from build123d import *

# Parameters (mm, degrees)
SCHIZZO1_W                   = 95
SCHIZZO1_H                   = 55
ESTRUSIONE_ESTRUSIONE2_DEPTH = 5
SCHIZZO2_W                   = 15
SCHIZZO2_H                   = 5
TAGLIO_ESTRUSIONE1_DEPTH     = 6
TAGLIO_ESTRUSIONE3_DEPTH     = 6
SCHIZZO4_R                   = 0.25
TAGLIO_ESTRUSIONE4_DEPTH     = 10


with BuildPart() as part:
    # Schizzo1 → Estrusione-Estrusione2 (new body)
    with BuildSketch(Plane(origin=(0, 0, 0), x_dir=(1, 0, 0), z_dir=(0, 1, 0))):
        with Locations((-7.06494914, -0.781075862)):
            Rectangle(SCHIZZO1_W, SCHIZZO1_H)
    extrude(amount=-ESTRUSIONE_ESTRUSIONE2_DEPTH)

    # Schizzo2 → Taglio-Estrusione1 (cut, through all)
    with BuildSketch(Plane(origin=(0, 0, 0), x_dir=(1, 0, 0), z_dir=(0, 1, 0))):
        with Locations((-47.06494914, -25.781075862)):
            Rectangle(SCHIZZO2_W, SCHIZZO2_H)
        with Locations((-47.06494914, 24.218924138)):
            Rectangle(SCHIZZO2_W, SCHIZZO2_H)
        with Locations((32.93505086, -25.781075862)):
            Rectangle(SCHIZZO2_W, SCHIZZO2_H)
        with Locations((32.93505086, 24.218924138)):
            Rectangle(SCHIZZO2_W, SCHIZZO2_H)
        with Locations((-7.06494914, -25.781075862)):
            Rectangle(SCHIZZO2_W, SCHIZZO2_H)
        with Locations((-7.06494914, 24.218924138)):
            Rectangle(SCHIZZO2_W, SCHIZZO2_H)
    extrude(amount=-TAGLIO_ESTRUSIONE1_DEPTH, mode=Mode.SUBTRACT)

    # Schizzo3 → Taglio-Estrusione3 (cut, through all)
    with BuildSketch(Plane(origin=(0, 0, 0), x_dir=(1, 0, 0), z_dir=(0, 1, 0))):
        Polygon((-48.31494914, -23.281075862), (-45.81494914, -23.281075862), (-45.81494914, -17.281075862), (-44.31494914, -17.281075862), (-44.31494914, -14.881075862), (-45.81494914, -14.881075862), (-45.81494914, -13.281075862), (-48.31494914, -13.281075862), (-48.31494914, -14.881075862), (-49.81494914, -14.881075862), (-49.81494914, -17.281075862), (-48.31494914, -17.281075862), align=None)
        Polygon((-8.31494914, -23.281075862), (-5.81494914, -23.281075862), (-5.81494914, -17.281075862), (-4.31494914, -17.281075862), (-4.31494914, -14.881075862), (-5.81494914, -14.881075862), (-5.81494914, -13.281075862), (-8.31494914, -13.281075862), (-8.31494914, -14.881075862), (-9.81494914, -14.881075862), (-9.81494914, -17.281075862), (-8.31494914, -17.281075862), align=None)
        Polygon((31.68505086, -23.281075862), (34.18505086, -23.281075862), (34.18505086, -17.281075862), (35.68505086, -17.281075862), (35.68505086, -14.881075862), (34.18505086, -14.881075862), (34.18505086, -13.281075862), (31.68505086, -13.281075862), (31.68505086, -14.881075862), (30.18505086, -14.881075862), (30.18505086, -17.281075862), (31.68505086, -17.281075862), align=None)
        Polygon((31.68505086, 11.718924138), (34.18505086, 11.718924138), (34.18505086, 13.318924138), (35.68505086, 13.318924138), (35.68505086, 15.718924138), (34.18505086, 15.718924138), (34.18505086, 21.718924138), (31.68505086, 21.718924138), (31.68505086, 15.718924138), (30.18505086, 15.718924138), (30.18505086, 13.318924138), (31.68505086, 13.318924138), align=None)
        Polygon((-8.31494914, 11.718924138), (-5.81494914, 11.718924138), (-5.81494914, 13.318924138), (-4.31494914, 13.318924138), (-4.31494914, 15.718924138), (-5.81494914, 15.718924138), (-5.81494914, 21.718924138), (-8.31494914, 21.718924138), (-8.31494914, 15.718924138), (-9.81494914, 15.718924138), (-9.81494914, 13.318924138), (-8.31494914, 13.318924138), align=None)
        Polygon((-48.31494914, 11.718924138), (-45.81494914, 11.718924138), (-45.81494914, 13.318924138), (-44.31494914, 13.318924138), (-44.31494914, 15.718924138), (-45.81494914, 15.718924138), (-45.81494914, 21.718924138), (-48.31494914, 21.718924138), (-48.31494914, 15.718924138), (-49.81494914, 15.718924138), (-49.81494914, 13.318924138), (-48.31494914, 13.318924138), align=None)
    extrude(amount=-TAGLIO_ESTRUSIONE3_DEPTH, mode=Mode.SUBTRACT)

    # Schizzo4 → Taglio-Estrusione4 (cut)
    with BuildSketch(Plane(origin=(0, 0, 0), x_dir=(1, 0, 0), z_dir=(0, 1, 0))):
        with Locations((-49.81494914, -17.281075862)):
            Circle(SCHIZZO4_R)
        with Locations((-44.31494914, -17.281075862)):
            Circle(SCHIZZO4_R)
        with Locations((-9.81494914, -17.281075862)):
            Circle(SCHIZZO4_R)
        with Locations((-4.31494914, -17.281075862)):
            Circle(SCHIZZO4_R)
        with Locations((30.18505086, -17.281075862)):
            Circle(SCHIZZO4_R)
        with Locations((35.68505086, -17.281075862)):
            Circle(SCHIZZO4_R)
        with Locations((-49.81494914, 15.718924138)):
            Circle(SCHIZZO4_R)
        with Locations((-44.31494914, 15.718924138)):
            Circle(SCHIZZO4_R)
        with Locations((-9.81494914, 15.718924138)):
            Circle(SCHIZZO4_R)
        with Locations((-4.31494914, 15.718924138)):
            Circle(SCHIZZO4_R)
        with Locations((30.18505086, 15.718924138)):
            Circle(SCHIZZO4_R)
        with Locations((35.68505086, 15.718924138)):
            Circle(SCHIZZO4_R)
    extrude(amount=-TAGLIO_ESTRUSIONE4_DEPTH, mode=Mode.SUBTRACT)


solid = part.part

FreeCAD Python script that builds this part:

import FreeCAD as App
import Part
import Sketcher
Q = App.Units.Quantity

doc = App.newDocument("Part")
body = doc.addObject("PartDesign::Body", "Body")

# Sketch on XZ plane
sketch1 = body.newObject("Sketcher::SketchObject", "Sketch")
sketch1.AttachmentSupport = (doc.getObject("XZ_Plane"), [""])
sketch1.MapMode = "FlatFace"
sketch1.addGeometry([
    Part.LineSegment(App.Vector(-54.564949, -26.718924, 0), App.Vector(-54.564949, 28.281076, 0)),
    Part.LineSegment(App.Vector(-54.564949, 28.281076, 0), App.Vector(40.435051, 28.281076, 0)),
    Part.LineSegment(App.Vector(40.435051, 28.281076, 0), App.Vector(40.435051, -26.718924, 0)),
    Part.LineSegment(App.Vector(40.435051, -26.718924, 0), App.Vector(-54.564949, -26.718924, 0)),
], False)
sketch1.addConstraint([
    Sketcher.Constraint("Coincident", 0, 2, 1, 1),
    Sketcher.Constraint("Coincident", 1, 2, 2, 1),
    Sketcher.Constraint("Coincident", 2, 2, 3, 1),
    Sketcher.Constraint("Coincident", 3, 2, 0, 1),
    Sketcher.Constraint("Vertical", 0),
    Sketcher.Constraint("Horizontal", 1),
    Sketcher.Constraint("Vertical", 2),
    Sketcher.Constraint("Horizontal", 3),
    Sketcher.Constraint("DistanceX", 1, 1, 1, 2, Q("95 mm")),
    Sketcher.Constraint("DistanceY", 0, 1, 0, 2, Q("55 mm")),
    Sketcher.Constraint("DistanceX", 0, 2, -1, 1, Q("54.564949 mm")),
    Sketcher.Constraint("DistanceY", -1, 1, 0, 2, Q("28.281076 mm")),
])
pad1 = body.newObject("PartDesign::Pad", "Pad")
pad1.Profile = sketch1
pad1.Length = 5

# Sketch on XZ plane
sketch2 = body.newObject("Sketcher::SketchObject", "Sketch001")
sketch2.AttachmentSupport = (doc.getObject("XZ_Plane"), [""])
sketch2.MapMode = "FlatFace"
sketch2.addGeometry([
    Part.LineSegment(App.Vector(-54.564949, 23.281076, 0), App.Vector(-54.564949, 28.281076, 0)),  # 0
    Part.LineSegment(App.Vector(-54.564949, 28.281076, 0), App.Vector(-39.564949, 28.281076, 0)),  # 1
    Part.LineSegment(App.Vector(-39.564949, 28.281076, 0), App.Vector(-39.564949, 23.281076, 0)),  # 2
    Part.LineSegment(App.Vector(-39.564949, 23.281076, 0), App.Vector(-54.564949, 23.281076, 0)),  # 3
    Part.LineSegment(App.Vector(-54.564949, -26.718924, 0), App.Vector(-54.564949, -21.718924, 0)),  # 4
    Part.LineSegment(App.Vector(-54.564949, -21.718924, 0), App.Vector(-39.564949, -21.718924, 0)),  # 5
    Part.LineSegment(App.Vector(-39.564949, -21.718924, 0), App.Vector(-39.564949, -26.718924, 0)),  # 6
    Part.LineSegment(App.Vector(-39.564949, -26.718924, 0), App.Vector(-54.564949, -26.718924, 0)),  # 7
    Part.LineSegment(App.Vector(25.435051, 23.281076, 0), App.Vector(25.435051, 28.281076, 0)),  # 8
    Part.LineSegment(App.Vector(25.435051, 28.281076, 0), App.Vector(40.435051, 28.281076, 0)),  # 9
    Part.LineSegment(App.Vector(40.435051, 28.281076, 0), App.Vector(40.435051, 23.281076, 0)),  # 10
    Part.LineSegment(App.Vector(40.435051, 23.281076, 0), App.Vector(25.435051, 23.281076, 0)),  # 11
    Part.LineSegment(App.Vector(25.435051, -26.718924, 0), App.Vector(25.435051, -21.718924, 0)),  # 12
    Part.LineSegment(App.Vector(25.435051, -21.718924, 0), App.Vector(40.435051, -21.718924, 0)),  # 13
    Part.LineSegment(App.Vector(40.435051, -21.718924, 0), App.Vector(40.435051, -26.718924, 0)),  # 14
    Part.LineSegment(App.Vector(40.435051, -26.718924, 0), App.Vector(25.435051, -26.718924, 0)),  # 15
    Part.LineSegment(App.Vector(-14.564949, 23.281076, 0), App.Vector(-14.564949, 28.281076, 0)),  # 16
    Part.LineSegment(App.Vector(-14.564949, 28.281076, 0), App.Vector(0.435051, 28.281076, 0)),  # 17
    Part.LineSegment(App.Vector(0.435051, 28.281076, 0), App.Vector(0.435051, 23.281076, 0)),  # 18
    Part.LineSegment(App.Vector(0.435051, 23.281076, 0), App.Vector(-14.564949, 23.281076, 0)),  # 19
    Part.LineSegment(App.Vector(-14.564949, -26.718924, 0), App.Vector(-14.564949, -21.718924, 0)),  # 20
    Part.LineSegment(App.Vector(-14.564949, -21.718924, 0), App.Vector(0.435051, -21.718924, 0)),  # 21
    Part.LineSegment(App.Vector(0.435051, -21.718924, 0), App.Vector(0.435051, -26.718924, 0)),  # 22
    Part.LineSegment(App.Vector(0.435051, -26.718924, 0), App.Vector(-14.564949, -26.718924, 0)),  # 23
], False)
sketch2.addConstraint([
    Sketcher.Constraint("Coincident", 0, 2, 1, 1),
    Sketcher.Constraint("Coincident", 1, 2, 2, 1),
    Sketcher.Constraint("Coincident", 2, 2, 3, 1),
    Sketcher.Constraint("Coincident", 3, 2, 0, 1),
    Sketcher.Constraint("Coincident", 4, 2, 5, 1),
    Sketcher.Constraint("Coincident", 5, 2, 6, 1),
    Sketcher.Constraint("Coincident", 6, 2, 7, 1),
    Sketcher.Constraint("Coincident", 7, 2, 4, 1),
    Sketcher.Constraint("Coincident", 8, 2, 9, 1),
    Sketcher.Constraint("Coincident", 9, 2, 10, 1),
    Sketcher.Constraint("Coincident", 10, 2, 11, 1),
    Sketcher.Constraint("Coincident", 11, 2, 8, 1),
    Sketcher.Constraint("Coincident", 12, 2, 13, 1),
    Sketcher.Constraint("Coincident", 13, 2, 14, 1),
    Sketcher.Constraint("Coincident", 14, 2, 15, 1),
    Sketcher.Constraint("Coincident", 15, 2, 12, 1),
    Sketcher.Constraint("Coincident", 16, 2, 17, 1),
    Sketcher.Constraint("Coincident", 17, 2, 18, 1),
    Sketcher.Constraint("Coincident", 18, 2, 19, 1),
    Sketcher.Constraint("Coincident", 19, 2, 16, 1),
    Sketcher.Constraint("Coincident", 20, 2, 21, 1),
    Sketcher.Constraint("Coincident", 21, 2, 22, 1),
    Sketcher.Constraint("Coincident", 22, 2, 23, 1),
    Sketcher.Constraint("Coincident", 23, 2, 20, 1),
    Sketcher.Constraint("Vertical", 0),
    Sketcher.Constraint("Horizontal", 1),
    Sketcher.Constraint("Vertical", 2),
    Sketcher.Constraint("Horizontal", 3),
    Sketcher.Constraint("Vertical", 4),
    Sketcher.Constraint("Horizontal", 5),
    Sketcher.Constraint("Vertical", 6),
    Sketcher.Constraint("Horizontal", 7),
    Sketcher.Constraint("Vertical", 8),
    Sketcher.Constraint("Horizontal", 9),
    Sketcher.Constraint("Vertical", 10),
    Sketcher.Constraint("Horizontal", 11),
    Sketcher.Constraint("Vertical", 12),
    Sketcher.Constraint("Horizontal", 13),
    Sketcher.Constraint("Vertical", 14),
    Sketcher.Constraint("Horizontal", 15),
    Sketcher.Constraint("Vertical", 16),
    Sketcher.Constraint("Horizontal", 17),
    Sketcher.Constraint("Vertical", 18),
    Sketcher.Constraint("Horizontal", 19),
    Sketcher.Constraint("Vertical", 20),
    Sketcher.Constraint("Horizontal", 21),
    Sketcher.Constraint("Vertical", 22),
    Sketcher.Constraint("Horizontal", 23),
    Sketcher.Constraint("Horizontal", 1, 2, 8, 2),
    Sketcher.Constraint("Horizontal", 3, 2, 10, 2),
    Sketcher.Constraint("Horizontal", 5, 2, 12, 2),
    Sketcher.Constraint("Horizontal", 7, 2, 14, 2),
    Sketcher.Constraint("Horizontal", 9, 2, 16, 2),
    Sketcher.Constraint("Horizontal", 11, 2, 18, 2),
    Sketcher.Constraint("Horizontal", 13, 2, 20, 2),
    Sketcher.Constraint("Horizontal", 15, 2, 22, 2),
    Sketcher.Constraint("Vertical", 3, 2, 4, 2),
    Sketcher.Constraint("Vertical", 2, 2, 5, 2),
    Sketcher.Constraint("Vertical", 11, 2, 12, 2),
    Sketcher.Constraint("Vertical", 10, 2, 13, 2),
    Sketcher.Constraint("Vertical", 19, 2, 20, 2),
    Sketcher.Constraint("Vertical", 18, 2, 21, 2),
    Sketcher.Constraint("Equal", 7, 9),
    Sketcher.Constraint("Equal", 15, 17),
    Sketcher.Constraint("Equal", 2, 4),
    Sketcher.Constraint("DistanceX", 1, 1, 1, 2, Q("15 mm")),
    Sketcher.Constraint("DistanceY", 0, 1, 0, 2, Q("5 mm")),
    Sketcher.Constraint("DistanceY", 4, 2, 3, 2, Q("45 mm")),
    Sketcher.Constraint("DistanceX", 1, 2, 8, 2, Q("65 mm")),
    Sketcher.Constraint("DistanceX", 1, 2, 16, 2, Q("25 mm")),
    Sketcher.Constraint("DistanceX", 0, 2, -1, 1, Q("54.564949 mm")),
    Sketcher.Constraint("DistanceY", -1, 1, 0, 2, Q("28.281076 mm")),
])
pocket1 = body.newObject("PartDesign::Pocket", "Pocket")
pocket1.Profile = sketch2
pocket1.Type = "ThroughAll"
pocket1.Reversed = True

# Sketch on XZ plane
sketch3 = body.newObject("Sketcher::SketchObject", "Sketch002")
sketch3.AttachmentSupport = (doc.getObject("XZ_Plane"), [""])
sketch3.MapMode = "FlatFace"
sketch3.addGeometry([
    Part.LineSegment(App.Vector(-48.314949, 23.281076, 0), App.Vector(-45.814949, 23.281076, 0)),  # 0
    Part.LineSegment(App.Vector(-45.814949, 23.281076, 0), App.Vector(-45.814949, 17.281076, 0)),  # 1
    Part.LineSegment(App.Vector(-45.814949, 17.281076, 0), App.Vector(-44.314949, 17.281076, 0)),  # 2
    Part.LineSegment(App.Vector(-44.314949, 17.281076, 0), App.Vector(-44.314949, 14.881076, 0)),  # 3
    Part.LineSegment(App.Vector(-44.314949, 14.881076, 0), App.Vector(-45.814949, 14.881076, 0)),  # 4
    Part.LineSegment(App.Vector(-45.814949, 14.881076, 0), App.Vector(-45.814949, 13.281076, 0)),  # 5
    Part.LineSegment(App.Vector(-45.814949, 13.281076, 0), App.Vector(-48.314949, 13.281076, 0)),  # 6
    Part.LineSegment(App.Vector(-48.314949, 13.281076, 0), App.Vector(-48.314949, 14.881076, 0)),  # 7
    Part.LineSegment(App.Vector(-48.314949, 14.881076, 0), App.Vector(-49.814949, 14.881076, 0)),  # 8
    Part.LineSegment(App.Vector(-49.814949, 14.881076, 0), App.Vector(-49.814949, 17.281076, 0)),  # 9
    Part.LineSegment(App.Vector(-49.814949, 17.281076, 0), App.Vector(-48.314949, 17.281076, 0)),  # 10
    Part.LineSegment(App.Vector(-48.314949, 17.281076, 0), App.Vector(-48.314949, 23.281076, 0)),  # 11
    Part.LineSegment(App.Vector(-8.314949, 23.281076, 0), App.Vector(-5.814949, 23.281076, 0)),  # 12
    Part.LineSegment(App.Vector(-5.814949, 23.281076, 0), App.Vector(-5.814949, 17.281076, 0)),  # 13
    Part.LineSegment(App.Vector(-5.814949, 17.281076, 0), App.Vector(-4.314949, 17.281076, 0)),  # 14
    Part.LineSegment(App.Vector(-4.314949, 17.281076, 0), App.Vector(-4.314949, 14.881076, 0)),  # 15
    Part.LineSegment(App.Vector(-4.314949, 14.881076, 0), App.Vector(-5.814949, 14.881076, 0)),  # 16
    Part.LineSegment(App.Vector(-5.814949, 14.881076, 0), App.Vector(-5.814949, 13.281076, 0)),  # 17
    Part.LineSegment(App.Vector(-5.814949, 13.281076, 0), App.Vector(-8.314949, 13.281076, 0)),  # 18
    Part.LineSegment(App.Vector(-8.314949, 13.281076, 0), App.Vector(-8.314949, 14.881076, 0)),  # 19
    Part.LineSegment(App.Vector(-8.314949, 14.881076, 0), App.Vector(-9.814949, 14.881076, 0)),  # 20
    Part.LineSegment(App.Vector(-9.814949, 14.881076, 0), App.Vector(-9.814949, 17.281076, 0)),  # 21
    Part.LineSegment(App.Vector(-9.814949, 17.281076, 0), App.Vector(-8.314949, 17.281076, 0)),  # 22
    Part.LineSegment(App.Vector(-8.314949, 17.281076, 0), App.Vector(-8.314949, 23.281076, 0)),  # 23
    Part.LineSegment(App.Vector(31.685051, 23.281076, 0), App.Vector(34.185051, 23.281076, 0)),  # 24
    Part.LineSegment(App.Vector(34.185051, 23.281076, 0), App.Vector(34.185051, 17.281076, 0)),  # 25
    Part.LineSegment(App.Vector(34.185051, 17.281076, 0), App.Vector(35.685051, 17.281076, 0)),  # 26
    Part.LineSegment(App.Vector(35.685051, 17.281076, 0), App.Vector(35.685051, 14.881076, 0)),  # 27
    Part.LineSegment(App.Vector(35.685051, 14.881076, 0), App.Vector(34.185051, 14.881076, 0)),  # 28
    Part.LineSegment(App.Vector(34.185051, 14.881076, 0), App.Vector(34.185051, 13.281076, 0)),  # 29
    Part.LineSegment(App.Vector(34.185051, 13.281076, 0), App.Vector(31.685051, 13.281076, 0)),  # 30
    Part.LineSegment(App.Vector(31.685051, 13.281076, 0), App.Vector(31.685051, 14.881076, 0)),  # 31
    Part.LineSegment(App.Vector(31.685051, 14.881076, 0), App.Vector(30.185051, 14.881076, 0)),  # 32
    Part.LineSegment(App.Vector(30.185051, 14.881076, 0), App.Vector(30.185051, 17.281076, 0)),  # 33
    Part.LineSegment(App.Vector(30.185051, 17.281076, 0), App.Vector(31.685051, 17.281076, 0)),  # 34
    Part.LineSegment(App.Vector(31.685051, 17.281076, 0), App.Vector(31.685051, 23.281076, 0)),  # 35
    Part.LineSegment(App.Vector(31.685051, -11.718924, 0), App.Vector(34.185051, -11.718924, 0)),  # 36
    Part.LineSegment(App.Vector(34.185051, -11.718924, 0), App.Vector(34.185051, -13.318924, 0)),  # 37
    Part.LineSegment(App.Vector(34.185051, -13.318924, 0), App.Vector(35.685051, -13.318924, 0)),  # 38
    Part.LineSegment(App.Vector(35.685051, -13.318924, 0), App.Vector(35.685051, -15.718924, 0)),  # 39
    Part.LineSegment(App.Vector(35.685051, -15.718924, 0), App.Vector(34.185051, -15.718924, 0)),  # 40
    Part.LineSegment(App.Vector(34.185051, -15.718924, 0), App.Vector(34.185051, -21.718924, 0)),  # 41
    Part.LineSegment(App.Vector(34.185051, -21.718924, 0), App.Vector(31.685051, -21.718924, 0)),  # 42
    Part.LineSegment(App.Vector(31.685051, -21.718924, 0), App.Vector(31.685051, -15.718924, 0)),  # 43
    Part.LineSegment(App.Vector(31.685051, -15.718924, 0), App.Vector(30.185051, -15.718924, 0)),  # 44
    Part.LineSegment(App.Vector(30.185051, -15.718924, 0), App.Vector(30.185051, -13.318924, 0)),  # 45
    Part.LineSegment(App.Vector(30.185051, -13.318924, 0), App.Vector(31.685051, -13.318924, 0)),  # 46
    Part.LineSegment(App.Vector(31.685051, -13.318924, 0), App.Vector(31.685051, -11.718924, 0)),  # 47
    Part.LineSegment(App.Vector(-8.314949, -11.718924, 0), App.Vector(-5.814949, -11.718924, 0)),  # 48
    Part.LineSegment(App.Vector(-5.814949, -11.718924, 0), App.Vector(-5.814949, -13.318924, 0)),  # 49
    Part.LineSegment(App.Vector(-5.814949, -13.318924, 0), App.Vector(-4.314949, -13.318924, 0)),  # 50
    Part.LineSegment(App.Vector(-4.314949, -13.318924, 0), App.Vector(-4.314949, -15.718924, 0)),  # 51
    Part.LineSegment(App.Vector(-4.314949, -15.718924, 0), App.Vector(-5.814949, -15.718924, 0)),  # 52
    Part.LineSegment(App.Vector(-5.814949, -15.718924, 0), App.Vector(-5.814949, -21.718924, 0)),  # 53
    Part.LineSegment(App.Vector(-5.814949, -21.718924, 0), App.Vector(-8.314949, -21.718924, 0)),  # 54
    Part.LineSegment(App.Vector(-8.314949, -21.718924, 0), App.Vector(-8.314949, -15.718924, 0)),  # 55
    Part.LineSegment(App.Vector(-8.314949, -15.718924, 0), App.Vector(-9.814949, -15.718924, 0)),  # 56
    Part.LineSegment(App.Vector(-9.814949, -15.718924, 0), App.Vector(-9.814949, -13.318924, 0)),  # 57
    Part.LineSegment(App.Vector(-9.814949, -13.318924, 0), App.Vector(-8.314949, -13.318924, 0)),  # 58
    Part.LineSegment(App.Vector(-8.314949, -13.318924, 0), App.Vector(-8.314949, -11.718924, 0)),  # 59
    Part.LineSegment(App.Vector(-48.314949, -11.718924, 0), App.Vector(-45.814949, -11.718924, 0)),  # 60
    Part.LineSegment(App.Vector(-45.814949, -11.718924, 0), App.Vector(-45.814949, -13.318924, 0)),  # 61
    Part.LineSegment(App.Vector(-45.814949, -13.318924, 0), App.Vector(-44.314949, -13.318924, 0)),  # 62
    Part.LineSegment(App.Vector(-44.314949, -13.318924, 0), App.Vector(-44.314949, -15.718924, 0)),  # 63
    Part.LineSegment(App.Vector(-44.314949, -15.718924, 0), App.Vector(-45.814949, -15.718924, 0)),  # 64
    Part.LineSegment(App.Vector(-45.814949, -15.718924, 0), App.Vector(-45.814949, -21.718924, 0)),  # 65
    Part.LineSegment(App.Vector(-45.814949, -21.718924, 0), App.Vector(-48.314949, -21.718924, 0)),  # 66
    Part.LineSegment(App.Vector(-48.314949, -21.718924, 0), App.Vector(-48.314949, -15.718924, 0)),  # 67
    Part.LineSegment(App.Vector(-48.314949, -15.718924, 0), App.Vector(-49.814949, -15.718924, 0)),  # 68
    Part.LineSegment(App.Vector(-49.814949, -15.718924, 0), App.Vector(-49.814949, -13.318924, 0)),  # 69
    Part.LineSegment(App.Vector(-49.814949, -13.318924, 0), App.Vector(-48.314949, -13.318924, 0)),  # 70
    Part.LineSegment(App.Vector(-48.314949, -13.318924, 0), App.Vector(-48.314949, -11.718924, 0)),  # 71
], False)
sketch3.addConstraint([
    Sketcher.Constraint("Coincident", 0, 2, 1, 1),
    Sketcher.Constraint("Coincident", 1, 2, 2, 1),
    Sketcher.Constraint("Coincident", 2, 2, 3, 1),
    Sketcher.Constraint("Coincident", 3, 2, 4, 1),
    Sketcher.Constraint("Coincident", 4, 2, 5, 1),
    Sketcher.Constraint("Coincident", 5, 2, 6, 1),
    Sketcher.Constraint("Coincident", 6, 2, 7, 1),
    Sketcher.Constraint("Coincident", 7, 2, 8, 1),
    Sketcher.Constraint("Coincident", 8, 2, 9, 1),
    Sketcher.Constraint("Coincident", 9, 2, 10, 1),
    Sketcher.Constraint("Coincident", 10, 2, 11, 1),
    Sketcher.Constraint("Coincident", 11, 2, 0, 1),
    Sketcher.Constraint("Coincident", 12, 2, 13, 1),
    Sketcher.Constraint("Coincident", 13, 2, 14, 1),
    Sketcher.Constraint("Coincident", 14, 2, 15, 1),
    Sketcher.Constraint("Coincident", 15, 2, 16, 1),
    Sketcher.Constraint("Coincident", 16, 2, 17, 1),
    Sketcher.Constraint("Coincident", 17, 2, 18, 1),
    Sketcher.Constraint("Coincident", 18, 2, 19, 1),
    Sketcher.Constraint("Coincident", 19, 2, 20, 1),
    Sketcher.Constraint("Coincident", 20, 2, 21, 1),
    Sketcher.Constraint("Coincident", 21, 2, 22, 1),
    Sketcher.Constraint("Coincident", 22, 2, 23, 1),
    Sketcher.Constraint("Coincident", 23, 2, 12, 1),
    Sketcher.Constraint("Coincident", 24, 2, 25, 1),
    Sketcher.Constraint("Coincident", 25, 2, 26, 1),
    Sketcher.Constraint("Coincident", 26, 2, 27, 1),
    Sketcher.Constraint("Coincident", 27, 2, 28, 1),
    Sketcher.Constraint("Coincident", 28, 2, 29, 1),
    Sketcher.Constraint("Coincident", 29, 2, 30, 1),
    Sketcher.Constraint("Coincident", 30, 2, 31, 1),
    Sketcher.Constraint("Coincident", 31, 2, 32, 1),
    Sketcher.Constraint("Coincident", 32, 2, 33, 1),
    Sketcher.Constraint("Coincident", 33, 2, 34, 1),
    Sketcher.Constraint("Coincident", 34, 2, 35, 1),
    Sketcher.Constraint("Coincident", 35, 2, 24, 1),
    Sketcher.Constraint("Coincident", 36, 2, 37, 1),
    Sketcher.Constraint("Coincident", 37, 2, 38, 1),
    Sketcher.Constraint("Coincident", 38, 2, 39, 1),
    Sketcher.Constraint("Coincident", 39, 2, 40, 1),
    Sketcher.Constraint("Coincident", 40, 2, 41, 1),
    Sketcher.Constraint("Coincident", 41, 2, 42, 1),
    Sketcher.Constraint("Coincident", 42, 2, 43, 1),
    Sketcher.Constraint("Coincident", 43, 2, 44, 1),
    Sketcher.Constraint("Coincident", 44, 2, 45, 1),
    Sketcher.Constraint("Coincident", 45, 2, 46, 1),
    Sketcher.Constraint("Coincident", 46, 2, 47, 1),
    Sketcher.Constraint("Coincident", 47, 2, 36, 1),
    Sketcher.Constraint("Coincident", 48, 2, 49, 1),
    Sketcher.Constraint("Coincident", 49, 2, 50, 1),
    Sketcher.Constraint("Coincident", 50, 2, 51, 1),
    Sketcher.Constraint("Coincident", 51, 2, 52, 1),
    Sketcher.Constraint("Coincident", 52, 2, 53, 1),
    Sketcher.Constraint("Coincident", 53, 2, 54, 1),
    Sketcher.Constraint("Coincident", 54, 2, 55, 1),
    Sketcher.Constraint("Coincident", 55, 2, 56, 1),
    Sketcher.Constraint("Coincident", 56, 2, 57, 1),
    Sketcher.Constraint("Coincident", 57, 2, 58, 1),
    Sketcher.Constraint("Coincident", 58, 2, 59, 1),
    Sketcher.Constraint("Coincident", 59, 2, 48, 1),
    Sketcher.Constraint("Coincident", 60, 2, 61, 1),
    Sketcher.Constraint("Coincident", 61, 2, 62, 1),
    Sketcher.Constraint("Coincident", 62, 2, 63, 1),
    Sketcher.Constraint("Coincident", 63, 2, 64, 1),
    Sketcher.Constraint("Coincident", 64, 2, 65, 1),
    Sketcher.Constraint("Coincident", 65, 2, 66, 1),
    Sketcher.Constraint("Coincident", 66, 2, 67, 1),
    Sketcher.Constraint("Coincident", 67, 2, 68, 1),
    Sketcher.Constraint("Coincident", 68, 2, 69, 1),
    Sketcher.Constraint("Coincident", 69, 2, 70, 1),
    Sketcher.Constraint("Coincident", 70, 2, 71, 1),
    Sketcher.Constraint("Coincident", 71, 2, 60, 1),
    Sketcher.Constraint("Horizontal", 0),
    Sketcher.Constraint("Vertical", 1),
    Sketcher.Constraint("Horizontal", 2),
    Sketcher.Constraint("Vertical", 3),
    Sketcher.Constraint("Horizontal", 4),
    Sketcher.Constraint("Vertical", 5),
    Sketcher.Constraint("Horizontal", 6),
    Sketcher.Constraint("Vertical", 7),
    Sketcher.Constraint("Horizontal", 8),
    Sketcher.Constraint("Vertical", 9),
    Sketcher.Constraint("Horizontal", 10),
    Sketcher.Constraint("Vertical", 11),
    Sketcher.Constraint("Horizontal", 12),
    Sketcher.Constraint("Vertical", 13),
    Sketcher.Constraint("Horizontal", 14),
    Sketcher.Constraint("Vertical", 15),
    Sketcher.Constraint("Horizontal", 16),
    Sketcher.Constraint("Vertical", 17),
    Sketcher.Constraint("Horizontal", 18),
    Sketcher.Constraint("Vertical", 19),
    Sketcher.Constraint("Horizontal", 20),
    Sketcher.Constraint("Vertical", 21),
    Sketcher.Constraint("Horizontal", 22),
    Sketcher.Constraint("Vertical", 23),
    Sketcher.Constraint("Horizontal", 24),
    Sketcher.Constraint("Vertical", 25),
    Sketcher.Constraint("Horizontal", 26),
    Sketcher.Constraint("Vertical", 27),
    Sketcher.Constraint("Horizontal", 28),
    Sketcher.Constraint("Vertical", 29),
    Sketcher.Constraint("Horizontal", 30),
    Sketcher.Constraint("Vertical", 31),
    Sketcher.Constraint("Horizontal", 32),
    Sketcher.Constraint("Vertical", 33),
    Sketcher.Constraint("Horizontal", 34),
    Sketcher.Constraint("Vertical", 35),
    Sketcher.Constraint("Horizontal", 36),
    Sketcher.Constraint("Vertical", 37),
    Sketcher.Constraint("Horizontal", 38),
    Sketcher.Constraint("Vertical", 39),
    Sketcher.Constraint("Horizontal", 40),
    Sketcher.Constraint("Vertical", 41),
    Sketcher.Constraint("Horizontal", 42),
    Sketcher.Constraint("Vertical", 43),
    Sketcher.Constraint("Horizontal", 44),
    Sketcher.Constraint("Vertical", 45),
    Sketcher.Constraint("Horizontal", 46),
    Sketcher.Constraint("Vertical", 47),
    Sketcher.Constraint("Horizontal", 48),
    Sketcher.Constraint("Vertical", 49),
    Sketcher.Constraint("Horizontal", 50),
    Sketcher.Constraint("Vertical", 51),
    Sketcher.Constraint("Horizontal", 52),
    Sketcher.Constraint("Vertical", 53),
    Sketcher.Constraint("Horizontal", 54),
    Sketcher.Constraint("Vertical", 55),
    Sketcher.Constraint("Horizontal", 56),
    Sketcher.Constraint("Vertical", 57),
    Sketcher.Constraint("Horizontal", 58),
    Sketcher.Constraint("Vertical", 59),
    Sketcher.Constraint("Horizontal", 60),
    Sketcher.Constraint("Vertical", 61),
    Sketcher.Constraint("Horizontal", 62),
    Sketcher.Constraint("Vertical", 63),
    Sketcher.Constraint("Horizontal", 64),
    Sketcher.Constraint("Vertical", 65),
    Sketcher.Constraint("Horizontal", 66),
    Sketcher.Constraint("Vertical", 67),
    Sketcher.Constraint("Horizontal", 68),
    Sketcher.Constraint("Vertical", 69),
    Sketcher.Constraint("Horizontal", 70),
    Sketcher.Constraint("Vertical", 71),
    Sketcher.Constraint("Horizontal", 4, 2, 7, 2),
    Sketcher.Constraint("Horizontal", 2, 2, 9, 2),
    Sketcher.Constraint("Horizontal", 11, 2, 12, 2),
    Sketcher.Constraint("Horizontal", 10, 2, 13, 2),
    Sketcher.Constraint("Horizontal", 8, 2, 15, 2),
    Sketcher.Constraint("Horizontal", 6, 2, 17, 2),
    Sketcher.Constraint("Horizontal", 16, 2, 19, 2),
    Sketcher.Constraint("Horizontal", 14, 2, 21, 2),
    Sketcher.Constraint("Horizontal", 23, 2, 24, 2),
    Sketcher.Constraint("Horizontal", 22, 2, 25, 2),
    Sketcher.Constraint("Horizontal", 20, 2, 27, 2),
    Sketcher.Constraint("Horizontal", 18, 2, 29, 2),
    Sketcher.Constraint("Horizontal", 28, 2, 31, 2),
    Sketcher.Constraint("Horizontal", 26, 2, 33, 2),
    Sketcher.Constraint("Horizontal", 40, 2, 43, 2),
    Sketcher.Constraint("Horizontal", 38, 2, 45, 2),
    Sketcher.Constraint("Horizontal", 47, 2, 48, 2),
    Sketcher.Constraint("Horizontal", 46, 2, 49, 2),
    Sketcher.Constraint("Horizontal", 44, 2, 51, 2),
    Sketcher.Constraint("Horizontal", 42, 2, 53, 2),
    Sketcher.Constraint("Horizontal", 52, 2, 55, 2),
    Sketcher.Constraint("Horizontal", 50, 2, 57, 2),
    Sketcher.Constraint("Horizontal", 59, 2, 60, 2),
    Sketcher.Constraint("Horizontal", 58, 2, 61, 2),
    Sketcher.Constraint("Horizontal", 56, 2, 63, 2),
    Sketcher.Constraint("Horizontal", 54, 2, 65, 2),
    Sketcher.Constraint("Horizontal", 64, 2, 67, 2),
    Sketcher.Constraint("Horizontal", 62, 2, 69, 2),
    Sketcher.Constraint("Vertical", 1, 2, 4, 2),
    Sketcher.Constraint("Vertical", 7, 2, 10, 2),
    Sketcher.Constraint("Vertical", 13, 2, 16, 2),
    Sketcher.Constraint("Vertical", 19, 2, 22, 2),
    Sketcher.Constraint("Vertical", 25, 2, 28, 2),
    Sketcher.Constraint("Vertical", 31, 2, 34, 2),
    Sketcher.Constraint("Vertical", 29, 2, 36, 2),
    Sketcher.Constraint("Vertical", 27, 2, 38, 2),
    Sketcher.Constraint("Vertical", 37, 2, 40, 2),
    Sketcher.Constraint("Vertical", 35, 2, 42, 2),
    Sketcher.Constraint("Vertical", 33, 2, 44, 2),
    Sketcher.Constraint("Vertical", 43, 2, 46, 2),
    Sketcher.Constraint("Vertical", 17, 2, 48, 2),
    Sketcher.Constraint("Vertical", 15, 2, 50, 2),
    Sketcher.Constraint("Vertical", 49, 2, 52, 2),
    Sketcher.Constraint("Vertical", 23, 2, 54, 2),
    Sketcher.Constraint("Vertical", 21, 2, 56, 2),
    Sketcher.Constraint("Vertical", 55, 2, 58, 2),
    Sketcher.Constraint("Vertical", 5, 2, 60, 2),
    Sketcher.Constraint("Vertical", 3, 2, 62, 2),
    Sketcher.Constraint("Vertical", 61, 2, 64, 2),
    Sketcher.Constraint("Vertical", 11, 2, 66, 2),
    Sketcher.Constraint("Vertical", 9, 2, 68, 2),
    Sketcher.Constraint("Vertical", 67, 2, 70, 2),
    Sketcher.Constraint("Equal", 4, 8),
    Sketcher.Constraint("Equal", 6, 12),
    Sketcher.Constraint("Equal", 10, 14),
    Sketcher.Constraint("Equal", 16, 20),
    Sketcher.Constraint("Equal", 18, 24),
    Sketcher.Constraint("Equal", 22, 26),
    Sketcher.Constraint("Equal", 28, 32),
    Sketcher.Constraint("Equal", 31, 37),
    Sketcher.Constraint("Equal", 33, 39),
    Sketcher.Constraint("Equal", 35, 41),
    Sketcher.Constraint("DistanceY", 1, 2, 1, 1, Q("6 mm")),
    Sketcher.Constraint("DistanceX", 0, 1, 0, 2, Q("2.5 mm")),
    Sketcher.Constraint("DistanceX", 2, 1, 2, 2, Q("1.5 mm")),
    Sketcher.Constraint("DistanceY", 3, 2, 3, 1, Q("2.4 mm")),
    Sketcher.Constraint("DistanceY", 5, 2, 5, 1, Q("1.6 mm")),
    Sketcher.Constraint("DistanceX", 0, 2, -1, 1, Q("45.814949 mm")),
    Sketcher.Constraint("DistanceX", 12, 2, -1, 1, Q("5.814949 mm")),
    Sketcher.Constraint("DistanceX", -1, 1, 24, 2, Q("34.185051 mm")),
    Sketcher.Constraint("DistanceY", -1, 1, 0, 2, Q("23.281076 mm")),
    Sketcher.Constraint("DistanceY", 36, 2, -1, 1, Q("11.718924 mm")),
])
pocket2 = body.newObject("PartDesign::Pocket", "Pocket001")
pocket2.Profile = sketch3
pocket2.Type = "ThroughAll"
pocket2.Reversed = True

# Sketch on XZ plane
sketch4 = body.newObject("Sketcher::SketchObject", "Sketch003")
sketch4.AttachmentSupport = (doc.getObject("XZ_Plane"), [""])
sketch4.MapMode = "FlatFace"
sketch4.addGeometry([
    Part.Circle(App.Vector(-49.814949, 17.281076, 0), App.Vector(0, 0, 1), 0.25),  # 0
    Part.Circle(App.Vector(-44.314949, 17.281076, 0), App.Vector(0, 0, 1), 0.25),  # 1
    Part.Circle(App.Vector(-9.814949, 17.281076, 0), App.Vector(0, 0, 1), 0.25),  # 2
    Part.Circle(App.Vector(-4.314949, 17.281076, 0), App.Vector(0, 0, 1), 0.25),  # 3
    Part.Circle(App.Vector(30.185051, 17.281076, 0), App.Vector(0, 0, 1), 0.25),  # 4
    Part.Circle(App.Vector(35.685051, 17.281076, 0), App.Vector(0, 0, 1), 0.25),  # 5
    Part.Circle(App.Vector(-49.814949, -15.718924, 0), App.Vector(0, 0, 1), 0.25),  # 6
    Part.Circle(App.Vector(-44.314949, -15.718924, 0), App.Vector(0, 0, 1), 0.25),  # 7
    Part.Circle(App.Vector(-9.814949, -15.718924, 0), App.Vector(0, 0, 1), 0.25),  # 8
    Part.Circle(App.Vector(-4.314949, -15.718924, 0), App.Vector(0, 0, 1), 0.25),  # 9
    Part.Circle(App.Vector(30.185051, -15.718924, 0), App.Vector(0, 0, 1), 0.25),  # 10
    Part.Circle(App.Vector(35.685051, -15.718924, 0), App.Vector(0, 0, 1), 0.25),  # 11
], False)
sketch4.addConstraint([
    Sketcher.Constraint("Equal", 0, 1),
    Sketcher.Constraint("Equal", 1, 2),
    Sketcher.Constraint("Equal", 2, 3),
    Sketcher.Constraint("Equal", 3, 4),
    Sketcher.Constraint("Equal", 4, 5),
    Sketcher.Constraint("Equal", 5, 6),
    Sketcher.Constraint("Equal", 6, 7),
    Sketcher.Constraint("Equal", 7, 8),
    Sketcher.Constraint("Equal", 8, 9),
    Sketcher.Constraint("Equal", 9, 10),
    Sketcher.Constraint("Equal", 10, 11),
    Sketcher.Constraint("Horizontal", 0, 3, 1, 3),
    Sketcher.Constraint("Horizontal", 1, 3, 2, 3),
    Sketcher.Constraint("Horizontal", 2, 3, 3, 3),
    Sketcher.Constraint("Horizontal", 3, 3, 4, 3),
    Sketcher.Constraint("Horizontal", 4, 3, 5, 3),
    Sketcher.Constraint("Horizontal", 6, 3, 7, 3),
    Sketcher.Constraint("Horizontal", 7, 3, 8, 3),
    Sketcher.Constraint("Horizontal", 8, 3, 9, 3),
    Sketcher.Constraint("Horizontal", 9, 3, 10, 3),
    Sketcher.Constraint("Horizontal", 10, 3, 11, 3),
    Sketcher.Constraint("Vertical", 0, 3, 6, 3),
    Sketcher.Constraint("Vertical", 1, 3, 7, 3),
    Sketcher.Constraint("Vertical", 2, 3, 8, 3),
    Sketcher.Constraint("Vertical", 3, 3, 9, 3),
    Sketcher.Constraint("Vertical", 4, 3, 10, 3),
    Sketcher.Constraint("Vertical", 5, 3, 11, 3),
    Sketcher.Constraint("Diameter", 0, Q("0.5 mm")),
    Sketcher.Constraint("DistanceX", 0, 3, 2, 3, Q("40 mm")),
    Sketcher.Constraint("DistanceX", 1, 3, 3, 3, Q("40 mm")),
    Sketcher.Constraint("DistanceX", 2, 3, 4, 3, Q("40 mm")),
    Sketcher.Constraint("DistanceX", 3, 3, 5, 3, Q("40 mm")),
    Sketcher.Constraint("DistanceY", 6, 3, 0, 3, Q("33 mm")),
    Sketcher.Constraint("DistanceX", 0, 3, 1, 3, Q("5.5 mm")),
    Sketcher.Constraint("DistanceX", 0, 3, -1, 1, Q("49.814949 mm")),
    Sketcher.Constraint("DistanceY", -1, 1, 0, 3, Q("17.281076 mm")),
])
pocket3 = body.newObject("PartDesign::Pocket", "Pocket002")
pocket3.Profile = sketch4
pocket3.Length = 10
pocket3.Reversed = True

doc.recompute()
